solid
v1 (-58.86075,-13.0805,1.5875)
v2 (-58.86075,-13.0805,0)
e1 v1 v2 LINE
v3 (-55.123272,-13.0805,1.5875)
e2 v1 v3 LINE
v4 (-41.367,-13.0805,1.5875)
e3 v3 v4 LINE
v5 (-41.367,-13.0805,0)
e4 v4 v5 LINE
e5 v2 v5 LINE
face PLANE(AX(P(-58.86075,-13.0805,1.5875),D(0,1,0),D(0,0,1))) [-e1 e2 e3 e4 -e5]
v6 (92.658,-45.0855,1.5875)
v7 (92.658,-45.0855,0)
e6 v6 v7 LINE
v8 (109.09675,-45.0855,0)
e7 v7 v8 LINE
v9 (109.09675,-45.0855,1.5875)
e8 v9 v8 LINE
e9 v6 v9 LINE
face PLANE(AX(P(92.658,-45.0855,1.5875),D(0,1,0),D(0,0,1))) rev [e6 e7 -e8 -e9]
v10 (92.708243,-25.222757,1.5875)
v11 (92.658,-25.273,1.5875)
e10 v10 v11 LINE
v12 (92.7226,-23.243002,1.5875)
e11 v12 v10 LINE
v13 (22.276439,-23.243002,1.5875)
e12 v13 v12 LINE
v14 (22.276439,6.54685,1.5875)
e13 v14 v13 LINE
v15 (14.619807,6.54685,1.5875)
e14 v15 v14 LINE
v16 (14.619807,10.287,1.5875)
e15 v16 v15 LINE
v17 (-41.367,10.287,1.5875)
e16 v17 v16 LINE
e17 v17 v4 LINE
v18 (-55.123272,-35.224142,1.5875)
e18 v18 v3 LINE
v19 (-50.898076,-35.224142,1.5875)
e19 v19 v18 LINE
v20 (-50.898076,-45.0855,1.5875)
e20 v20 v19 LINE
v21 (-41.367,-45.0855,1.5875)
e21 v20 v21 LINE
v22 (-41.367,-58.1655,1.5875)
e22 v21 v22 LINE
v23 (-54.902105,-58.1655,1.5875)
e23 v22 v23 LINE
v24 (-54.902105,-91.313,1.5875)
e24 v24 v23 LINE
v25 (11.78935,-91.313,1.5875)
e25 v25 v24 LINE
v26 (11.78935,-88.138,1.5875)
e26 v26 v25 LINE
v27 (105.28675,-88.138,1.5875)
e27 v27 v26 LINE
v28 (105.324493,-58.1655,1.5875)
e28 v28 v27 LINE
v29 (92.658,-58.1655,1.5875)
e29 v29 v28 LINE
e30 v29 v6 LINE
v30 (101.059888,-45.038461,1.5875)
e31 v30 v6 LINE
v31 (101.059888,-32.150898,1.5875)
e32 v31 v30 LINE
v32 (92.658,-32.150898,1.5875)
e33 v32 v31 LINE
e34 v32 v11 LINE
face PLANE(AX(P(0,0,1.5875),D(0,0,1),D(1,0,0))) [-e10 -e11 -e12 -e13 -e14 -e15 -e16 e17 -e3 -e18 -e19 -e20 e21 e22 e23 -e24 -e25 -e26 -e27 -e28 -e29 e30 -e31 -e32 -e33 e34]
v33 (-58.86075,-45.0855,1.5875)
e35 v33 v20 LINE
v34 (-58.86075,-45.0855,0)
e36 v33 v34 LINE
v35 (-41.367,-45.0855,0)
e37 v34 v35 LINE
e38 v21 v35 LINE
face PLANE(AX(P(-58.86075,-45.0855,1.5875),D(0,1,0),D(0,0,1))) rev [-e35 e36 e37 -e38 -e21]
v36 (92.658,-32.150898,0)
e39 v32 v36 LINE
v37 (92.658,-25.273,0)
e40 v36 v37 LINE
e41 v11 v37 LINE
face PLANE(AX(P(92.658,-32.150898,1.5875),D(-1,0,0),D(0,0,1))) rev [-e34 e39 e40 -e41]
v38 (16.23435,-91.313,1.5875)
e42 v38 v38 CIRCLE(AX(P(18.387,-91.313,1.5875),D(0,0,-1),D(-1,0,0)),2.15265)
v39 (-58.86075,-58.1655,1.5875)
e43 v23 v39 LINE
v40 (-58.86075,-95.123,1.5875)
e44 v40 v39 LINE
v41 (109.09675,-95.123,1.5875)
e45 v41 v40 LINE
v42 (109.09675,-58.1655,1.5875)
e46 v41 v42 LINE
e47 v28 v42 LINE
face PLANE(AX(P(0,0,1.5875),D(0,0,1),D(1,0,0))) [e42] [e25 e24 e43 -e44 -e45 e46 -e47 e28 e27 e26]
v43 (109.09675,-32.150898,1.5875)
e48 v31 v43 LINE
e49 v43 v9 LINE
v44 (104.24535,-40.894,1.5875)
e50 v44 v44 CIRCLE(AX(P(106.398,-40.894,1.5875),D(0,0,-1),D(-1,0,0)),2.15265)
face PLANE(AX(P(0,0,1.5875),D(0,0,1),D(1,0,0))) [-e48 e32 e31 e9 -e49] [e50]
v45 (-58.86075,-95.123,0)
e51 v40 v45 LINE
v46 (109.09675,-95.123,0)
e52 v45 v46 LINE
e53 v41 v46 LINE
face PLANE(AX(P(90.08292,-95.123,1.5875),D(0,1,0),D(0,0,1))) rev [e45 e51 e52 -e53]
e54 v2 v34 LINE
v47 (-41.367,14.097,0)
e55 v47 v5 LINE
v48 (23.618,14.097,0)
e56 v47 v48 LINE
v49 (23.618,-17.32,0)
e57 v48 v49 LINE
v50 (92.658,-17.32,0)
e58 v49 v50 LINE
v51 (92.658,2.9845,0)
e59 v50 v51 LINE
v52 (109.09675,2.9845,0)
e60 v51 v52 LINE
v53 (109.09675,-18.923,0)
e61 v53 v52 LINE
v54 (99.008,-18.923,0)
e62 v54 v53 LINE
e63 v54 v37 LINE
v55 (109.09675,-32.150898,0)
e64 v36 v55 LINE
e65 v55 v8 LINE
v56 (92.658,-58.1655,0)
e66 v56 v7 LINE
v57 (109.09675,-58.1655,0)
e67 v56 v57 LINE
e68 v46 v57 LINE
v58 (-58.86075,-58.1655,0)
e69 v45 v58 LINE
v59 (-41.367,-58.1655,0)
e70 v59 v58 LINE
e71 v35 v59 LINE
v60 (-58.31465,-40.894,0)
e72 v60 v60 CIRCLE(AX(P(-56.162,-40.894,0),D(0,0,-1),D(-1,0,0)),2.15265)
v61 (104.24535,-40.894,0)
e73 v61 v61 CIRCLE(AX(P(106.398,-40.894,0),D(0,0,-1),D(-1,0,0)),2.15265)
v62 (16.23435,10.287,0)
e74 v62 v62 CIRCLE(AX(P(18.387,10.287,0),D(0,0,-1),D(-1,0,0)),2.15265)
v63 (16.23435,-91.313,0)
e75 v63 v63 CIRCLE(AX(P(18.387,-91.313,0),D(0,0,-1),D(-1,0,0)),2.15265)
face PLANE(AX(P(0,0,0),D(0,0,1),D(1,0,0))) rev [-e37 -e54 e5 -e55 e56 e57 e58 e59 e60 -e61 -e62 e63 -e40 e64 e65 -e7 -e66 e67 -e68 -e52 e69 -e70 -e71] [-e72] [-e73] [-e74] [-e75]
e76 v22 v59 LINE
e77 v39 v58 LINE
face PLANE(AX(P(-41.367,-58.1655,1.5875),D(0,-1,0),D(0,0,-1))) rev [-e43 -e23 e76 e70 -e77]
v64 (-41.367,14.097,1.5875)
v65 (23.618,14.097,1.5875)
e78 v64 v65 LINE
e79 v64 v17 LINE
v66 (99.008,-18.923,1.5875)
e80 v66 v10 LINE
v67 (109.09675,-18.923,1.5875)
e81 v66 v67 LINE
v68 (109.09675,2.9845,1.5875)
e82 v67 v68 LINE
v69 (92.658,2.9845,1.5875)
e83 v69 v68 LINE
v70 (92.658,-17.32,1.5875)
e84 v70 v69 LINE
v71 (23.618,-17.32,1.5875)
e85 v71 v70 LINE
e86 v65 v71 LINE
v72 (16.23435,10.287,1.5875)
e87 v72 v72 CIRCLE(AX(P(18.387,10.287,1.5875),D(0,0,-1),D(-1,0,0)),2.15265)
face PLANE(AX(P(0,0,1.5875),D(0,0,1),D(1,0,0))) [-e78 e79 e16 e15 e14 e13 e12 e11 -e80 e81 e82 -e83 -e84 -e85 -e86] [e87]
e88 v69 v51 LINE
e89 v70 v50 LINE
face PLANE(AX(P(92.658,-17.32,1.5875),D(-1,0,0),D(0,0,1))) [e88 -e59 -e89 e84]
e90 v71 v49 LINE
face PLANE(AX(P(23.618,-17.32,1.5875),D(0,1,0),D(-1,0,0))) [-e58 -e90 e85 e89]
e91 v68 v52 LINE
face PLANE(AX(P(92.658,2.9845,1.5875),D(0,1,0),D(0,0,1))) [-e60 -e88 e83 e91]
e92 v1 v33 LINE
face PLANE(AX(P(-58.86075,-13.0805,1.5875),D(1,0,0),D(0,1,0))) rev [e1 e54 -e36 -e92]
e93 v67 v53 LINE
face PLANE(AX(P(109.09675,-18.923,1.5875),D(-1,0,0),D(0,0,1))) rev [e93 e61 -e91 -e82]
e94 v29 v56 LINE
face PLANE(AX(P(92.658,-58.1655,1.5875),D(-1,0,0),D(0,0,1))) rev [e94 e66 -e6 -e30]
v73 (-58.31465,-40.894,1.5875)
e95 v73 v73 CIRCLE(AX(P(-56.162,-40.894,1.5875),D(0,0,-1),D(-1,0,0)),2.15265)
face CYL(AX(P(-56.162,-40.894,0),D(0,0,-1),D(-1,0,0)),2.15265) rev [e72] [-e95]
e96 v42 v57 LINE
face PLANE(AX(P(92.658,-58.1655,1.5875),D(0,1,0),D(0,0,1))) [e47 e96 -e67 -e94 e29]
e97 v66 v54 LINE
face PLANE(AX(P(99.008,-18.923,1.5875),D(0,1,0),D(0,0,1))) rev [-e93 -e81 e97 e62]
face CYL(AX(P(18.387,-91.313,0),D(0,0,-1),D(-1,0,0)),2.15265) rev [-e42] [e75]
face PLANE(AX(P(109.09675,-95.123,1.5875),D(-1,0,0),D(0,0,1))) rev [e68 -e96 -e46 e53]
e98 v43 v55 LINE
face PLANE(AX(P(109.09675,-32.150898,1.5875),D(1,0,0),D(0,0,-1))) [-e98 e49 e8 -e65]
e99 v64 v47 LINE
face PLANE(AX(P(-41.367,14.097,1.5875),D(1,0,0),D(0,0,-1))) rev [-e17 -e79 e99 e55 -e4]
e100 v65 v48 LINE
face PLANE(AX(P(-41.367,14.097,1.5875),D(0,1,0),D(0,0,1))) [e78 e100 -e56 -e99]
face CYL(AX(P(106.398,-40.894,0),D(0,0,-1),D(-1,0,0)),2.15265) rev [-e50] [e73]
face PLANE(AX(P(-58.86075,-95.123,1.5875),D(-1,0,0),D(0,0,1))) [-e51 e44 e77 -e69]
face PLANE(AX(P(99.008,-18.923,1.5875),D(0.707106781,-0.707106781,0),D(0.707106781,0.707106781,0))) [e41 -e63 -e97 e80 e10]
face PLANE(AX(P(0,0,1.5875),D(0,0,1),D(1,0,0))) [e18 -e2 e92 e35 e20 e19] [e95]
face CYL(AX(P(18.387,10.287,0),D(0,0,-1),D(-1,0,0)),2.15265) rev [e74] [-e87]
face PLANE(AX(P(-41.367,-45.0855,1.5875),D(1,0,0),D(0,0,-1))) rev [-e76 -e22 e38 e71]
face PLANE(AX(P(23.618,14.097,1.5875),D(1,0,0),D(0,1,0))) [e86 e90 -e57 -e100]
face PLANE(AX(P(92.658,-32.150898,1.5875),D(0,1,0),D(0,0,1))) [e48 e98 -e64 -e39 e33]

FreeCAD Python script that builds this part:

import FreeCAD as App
import Part
import Sketcher
Q = App.Units.Quantity


def add_polygon(sketch, points):
    """Adds a closed chain of lines whose ends are joined by coincident constraints."""
    first, n = sketch.GeometryCount, len(points)
    for a, b in zip(points, points[1:] + points[:1]):
        sketch.addGeometry(Part.LineSegment(App.Vector(*a, 0), App.Vector(*b, 0)), False)
    for i in range(n):
        sketch.addConstraint(Sketcher.Constraint("Coincident", first + i, 2, first + (i + 1) % n, 1))

doc = App.newDocument("Part")
body = doc.addObject("PartDesign::Body", "Body")

# Sketch on XY plane
sketch1 = doc.addObject("Sketcher::SketchObject", "Sketch")
body.addObject(sketch1)
sketch1.AttachmentSupport = (doc.XY_Plane, [""])
sketch1.MapMode = "FlatFace"
add_polygon(sketch1, [(23.618, 14.097), (-41.367, 14.097), (-41.367, -13.0805), (-58.86075, -13.0805), (-58.86075, -45.0855), (-41.367, -45.0855), (-41.367, -58.1655), (-58.86075, -58.1655), (-58.86075, -95.123), (109.09675, -95.123), (109.09675, -58.1655), (92.658, -58.1655), (92.658, -45.0855), (109.09675, -45.0855), (109.09675, -32.150898), (92.658, -32.150898), (92.658, -25.273), (99.008, -18.923), (109.09675, -18.923), (109.09675, 2.9845), (92.658, 2.9845), (92.658, -17.32), (23.618, -17.32)])  # lines 0-22
sketch1.addConstraint(Sketcher.Constraint("Horizontal", 0))
sketch1.addConstraint(Sketcher.Constraint("Vertical", 1))
sketch1.addConstraint(Sketcher.Constraint("Horizontal", 2))
sketch1.addConstraint(Sketcher.Constraint("Vertical", 3))
sketch1.addConstraint(Sketcher.Constraint("Horizontal", 4))
sketch1.addConstraint(Sketcher.Constraint("Vertical", 5))
sketch1.addConstraint(Sketcher.Constraint("Horizontal", 6))
sketch1.addConstraint(Sketcher.Constraint("Vertical", 7))
sketch1.addConstraint(Sketcher.Constraint("Horizontal", 8))
sketch1.addConstraint(Sketcher.Constraint("Vertical", 9))
sketch1.addConstraint(Sketcher.Constraint("Horizontal", 10))
sketch1.addConstraint(Sketcher.Constraint("Vertical", 11))
sketch1.addConstraint(Sketcher.Constraint("Horizontal", 12))
sketch1.addConstraint(Sketcher.Constraint("Vertical", 13))
sketch1.addConstraint(Sketcher.Constraint("Horizontal", 14))
sketch1.addConstraint(Sketcher.Constraint("Vertical", 15))
sketch1.addConstraint(Sketcher.Constraint("Horizontal", 17))
sketch1.addConstraint(Sketcher.Constraint("Vertical", 18))
sketch1.addConstraint(Sketcher.Constraint("Horizontal", 19))
sketch1.addConstraint(Sketcher.Constraint("Vertical", 20))
sketch1.addConstraint(Sketcher.Constraint("Horizontal", 21))
sketch1.addConstraint(Sketcher.Constraint("Vertical", 22))
sketch1.addConstraint(Sketcher.Constraint("Horizontal", 6, 2, 9, 2))
sketch1.addConstraint(Sketcher.Constraint("Horizontal", 4, 2, 11, 2))
sketch1.addConstraint(Sketcher.Constraint("Vertical", 1, 2, 4, 2))
sketch1.addConstraint(Sketcher.Constraint("Vertical", 3, 2, 6, 2))
sketch1.addConstraint(Sketcher.Constraint("Vertical", 9, 2, 12, 2))
sketch1.addConstraint(Sketcher.Constraint("Vertical", 11, 2, 14, 2))
sketch1.addConstraint(Sketcher.Constraint("Vertical", 13, 2, 17, 2))
sketch1.addConstraint(Sketcher.Constraint("Vertical", 15, 2, 19, 2))
sketch1.addConstraint(Sketcher.Constraint("Angle", 16, Q("45 deg")))
sketch1.addConstraint(Sketcher.Constraint("DistanceX", 15, 2, 16, 2, Q("0.25 in")))
sketch1.addConstraint(Sketcher.Constraint("DistanceX", 8, 1, 8, 2, Q("6.6125 in")))
sketch1.addConstraint(Sketcher.Constraint("DistanceY", 18, 1, 18, 2, Q("0.8625 in")))
sketch1.addConstraint(Sketcher.Constraint("DistanceY", -1, 1, 0, 2, Q("0.555 in")))
sketch1.addConstraint(Sketcher.Constraint("DistanceY", 7, 2, -1, 1, Q("3.745 in")))
sketch1.addConstraint(Sketcher.Constraint("DistanceY", 15, 2, -1, 1, Q("0.995 in")))
sketch1.addConstraint(Sketcher.Constraint("DistanceY", 5, 2, 1, 2, Q("1.775 in")))
sketch1.addConstraint(Sketcher.Constraint("DistanceX", 0, 2, 0, 1, Q("64.985 mm")))
sketch1.addConstraint(Sketcher.Constraint("DistanceX", 21, 2, 21, 1, Q("69.04 mm")))
sketch1.addConstraint(Sketcher.Constraint("DistanceY", 1, 2, 1, 1, Q("27.1775 mm")))
sketch1.addConstraint(Sketcher.Constraint("DistanceY", 3, 2, 3, 1, Q("32.005 mm")))
sketch1.addConstraint(Sketcher.Constraint("DistanceY", 13, 1, 13, 2, Q("12.934602 mm")))
sketch1.addConstraint(Sketcher.Constraint("DistanceY", 20, 2, 20, 1, Q("20.3045 mm")))
sketch1.addConstraint(Sketcher.Constraint("DistanceX", 2, 2, 2, 1, Q("17.49375 mm")))
sketch1.addConstraint(Sketcher.Constraint("DistanceX", 0, 2, -1, 1, Q("41.367 mm")))
pad1 = doc.addObject("PartDesign::Pad", "Pad")
body.addObject(pad1)
pad1.Profile = sketch1
pad1.Length = Q("0.0625 in")

# Sketch on XY plane
sketch2 = doc.addObject("Sketcher::SketchObject", "Sketch001")
body.addObject(sketch2)
sketch2.AttachmentSupport = (doc.XY_Plane, [""])
sketch2.MapMode = "FlatFace"
sketch2.addGeometry(Part.Circle(App.Vector(106.398, -40.894, 0), App.Vector(0, 0, 1), 2.15265), False)
sketch2.addGeometry(Part.Circle(App.Vector(18.387, 10.287, 0), App.Vector(0, 0, 1), 2.15265), False)
sketch2.addGeometry(Part.Circle(App.Vector(-56.162, -40.894, 0), App.Vector(0, 0, 1), 2.15265), False)
sketch2.addGeometry(Part.Circle(App.Vector(18.387, -91.313, 0), App.Vector(0, 0, 1), 2.15265), False)
sketch2.addConstraint(Sketcher.Constraint("Equal", 0, 1))
sketch2.addConstraint(Sketcher.Constraint("Equal", 1, 2))
sketch2.addConstraint(Sketcher.Constraint("Equal", 2, 3))
sketch2.addConstraint(Sketcher.Constraint("Horizontal", 0, 3, 2, 3))
sketch2.addConstraint(Sketcher.Constraint("Vertical", 1, 3, 3, 3))
sketch2.addConstraint(Sketcher.Constraint("DistanceY", 3, 3, 1, 3, Q("4 in")))
sketch2.addConstraint(Sketcher.Constraint("Diameter", 0, Q("0.1695 in")))
sketch2.addConstraint(Sketcher.Constraint("DistanceX", 2, 3, 0, 3, Q("6.4 in")))
sketch2.addConstraint(Sketcher.Constraint("DistanceY", 0, 3, -1, 1, Q("1.61 in")))
sketch2.addConstraint(Sketcher.Constraint("DistanceY", -1, 1, 1, 3, Q("0.405 in")))
sketch2.addConstraint(Sketcher.Constraint("DistanceX", 1, 3, 0, 3, Q("3.465 in")))
sketch2.addConstraint(Sketcher.Constraint("DistanceX", -1, 1, 0, 3, Q("106.398 mm")))
doc.recompute()
hole = doc.addObject("PartDesign::Hole", "Hole")
body.addObject(hole)
hole.Profile = sketch2
hole.ThreadType = "None"
hole.Diameter = Q("0.1695 in")
hole.DepthType = "ThroughAll"
hole.Reversed = True

doc.recompute()
